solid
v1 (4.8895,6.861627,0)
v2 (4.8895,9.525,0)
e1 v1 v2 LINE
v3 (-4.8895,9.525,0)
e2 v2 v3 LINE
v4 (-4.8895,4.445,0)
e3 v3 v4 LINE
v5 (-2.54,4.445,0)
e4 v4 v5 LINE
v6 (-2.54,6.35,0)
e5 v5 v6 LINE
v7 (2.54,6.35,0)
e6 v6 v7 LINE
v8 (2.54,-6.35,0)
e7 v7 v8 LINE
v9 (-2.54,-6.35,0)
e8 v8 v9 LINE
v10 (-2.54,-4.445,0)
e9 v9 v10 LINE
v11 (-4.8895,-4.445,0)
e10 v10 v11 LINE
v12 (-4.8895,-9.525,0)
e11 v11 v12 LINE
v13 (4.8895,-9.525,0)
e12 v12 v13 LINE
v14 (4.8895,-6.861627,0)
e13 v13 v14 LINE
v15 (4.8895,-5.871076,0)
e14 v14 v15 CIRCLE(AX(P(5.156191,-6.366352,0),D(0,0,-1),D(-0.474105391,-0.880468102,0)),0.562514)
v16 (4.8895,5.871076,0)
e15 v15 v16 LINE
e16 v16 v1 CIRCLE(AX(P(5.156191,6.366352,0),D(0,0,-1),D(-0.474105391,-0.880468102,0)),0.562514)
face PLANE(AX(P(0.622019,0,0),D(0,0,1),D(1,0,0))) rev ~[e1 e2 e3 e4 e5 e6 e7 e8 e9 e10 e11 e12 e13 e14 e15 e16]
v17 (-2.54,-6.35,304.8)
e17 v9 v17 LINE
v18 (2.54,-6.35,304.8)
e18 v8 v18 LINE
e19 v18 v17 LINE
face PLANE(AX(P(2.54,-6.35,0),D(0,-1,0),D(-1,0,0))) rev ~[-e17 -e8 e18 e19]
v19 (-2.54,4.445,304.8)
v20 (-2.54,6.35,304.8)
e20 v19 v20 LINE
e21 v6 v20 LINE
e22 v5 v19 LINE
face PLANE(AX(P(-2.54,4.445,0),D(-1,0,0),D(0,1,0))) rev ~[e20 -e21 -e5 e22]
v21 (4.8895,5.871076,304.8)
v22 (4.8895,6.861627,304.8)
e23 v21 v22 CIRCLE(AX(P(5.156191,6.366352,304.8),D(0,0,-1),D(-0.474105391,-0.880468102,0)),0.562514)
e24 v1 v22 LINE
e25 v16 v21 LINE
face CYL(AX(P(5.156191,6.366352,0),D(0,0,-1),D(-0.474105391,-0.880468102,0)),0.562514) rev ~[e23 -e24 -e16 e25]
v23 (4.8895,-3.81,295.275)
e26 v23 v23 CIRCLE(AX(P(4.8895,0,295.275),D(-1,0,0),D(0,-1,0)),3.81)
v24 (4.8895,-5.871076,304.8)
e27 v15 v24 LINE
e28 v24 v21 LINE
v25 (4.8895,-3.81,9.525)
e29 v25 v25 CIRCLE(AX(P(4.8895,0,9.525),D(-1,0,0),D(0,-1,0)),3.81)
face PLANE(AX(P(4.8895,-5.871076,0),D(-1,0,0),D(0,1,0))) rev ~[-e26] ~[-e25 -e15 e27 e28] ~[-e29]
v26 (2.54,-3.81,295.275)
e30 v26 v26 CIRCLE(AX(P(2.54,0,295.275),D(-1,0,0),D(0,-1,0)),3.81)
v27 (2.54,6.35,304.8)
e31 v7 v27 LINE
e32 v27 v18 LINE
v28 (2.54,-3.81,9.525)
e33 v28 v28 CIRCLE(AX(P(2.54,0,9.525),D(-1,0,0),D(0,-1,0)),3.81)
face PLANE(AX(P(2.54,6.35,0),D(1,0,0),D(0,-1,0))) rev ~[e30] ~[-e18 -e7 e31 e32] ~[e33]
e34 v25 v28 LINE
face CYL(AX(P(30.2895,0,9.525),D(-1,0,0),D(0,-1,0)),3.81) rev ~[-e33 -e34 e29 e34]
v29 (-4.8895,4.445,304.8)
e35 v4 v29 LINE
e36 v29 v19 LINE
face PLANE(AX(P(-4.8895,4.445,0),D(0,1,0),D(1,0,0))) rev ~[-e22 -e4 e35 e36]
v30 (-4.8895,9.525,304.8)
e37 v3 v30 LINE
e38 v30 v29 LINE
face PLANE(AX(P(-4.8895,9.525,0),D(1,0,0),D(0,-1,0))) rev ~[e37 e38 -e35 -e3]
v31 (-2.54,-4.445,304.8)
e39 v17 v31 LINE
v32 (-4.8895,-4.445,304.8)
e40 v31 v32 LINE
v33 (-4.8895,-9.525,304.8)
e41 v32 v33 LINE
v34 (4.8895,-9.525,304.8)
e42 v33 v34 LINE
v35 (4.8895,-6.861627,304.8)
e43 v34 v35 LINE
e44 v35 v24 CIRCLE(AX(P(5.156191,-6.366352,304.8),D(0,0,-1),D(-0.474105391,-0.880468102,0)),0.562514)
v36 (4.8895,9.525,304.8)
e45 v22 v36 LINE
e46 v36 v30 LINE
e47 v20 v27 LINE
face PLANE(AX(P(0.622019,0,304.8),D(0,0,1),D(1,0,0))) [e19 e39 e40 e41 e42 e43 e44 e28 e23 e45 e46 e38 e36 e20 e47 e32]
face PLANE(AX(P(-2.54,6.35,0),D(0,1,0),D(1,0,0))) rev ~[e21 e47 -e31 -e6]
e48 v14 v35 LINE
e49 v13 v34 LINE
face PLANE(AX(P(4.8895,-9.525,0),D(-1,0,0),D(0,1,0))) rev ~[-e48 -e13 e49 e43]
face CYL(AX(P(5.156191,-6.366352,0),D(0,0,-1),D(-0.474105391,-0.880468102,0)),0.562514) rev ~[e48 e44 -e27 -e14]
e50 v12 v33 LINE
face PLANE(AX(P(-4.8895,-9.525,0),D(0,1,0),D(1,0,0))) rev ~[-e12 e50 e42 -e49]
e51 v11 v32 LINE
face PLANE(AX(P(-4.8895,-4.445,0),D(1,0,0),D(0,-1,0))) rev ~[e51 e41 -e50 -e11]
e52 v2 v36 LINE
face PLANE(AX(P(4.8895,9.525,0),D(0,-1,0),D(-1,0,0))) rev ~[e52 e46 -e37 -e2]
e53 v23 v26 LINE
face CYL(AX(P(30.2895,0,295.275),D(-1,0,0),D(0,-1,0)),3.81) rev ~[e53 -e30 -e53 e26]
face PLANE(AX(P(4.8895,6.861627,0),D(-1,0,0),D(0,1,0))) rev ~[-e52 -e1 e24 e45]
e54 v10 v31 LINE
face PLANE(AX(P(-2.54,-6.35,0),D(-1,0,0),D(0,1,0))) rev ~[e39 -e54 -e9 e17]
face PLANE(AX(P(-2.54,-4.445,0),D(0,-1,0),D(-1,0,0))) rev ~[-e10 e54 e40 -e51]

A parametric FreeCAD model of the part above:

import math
import FreeCAD as App
import Part
import Sketcher
from FreeCAD import Vector
Q = App.Units.Quantity

doc = App.newDocument("Part")
params = doc.addObject("Spreadsheet::Sheet", "Params")
for row, (alias, value) in enumerate([
    ("sketch1_width", "0.2 in"),
    ("sketch1_height", "0.5 in"),
    ("sketch1_width2", "0.385 in"),
    ("sketch1_height2", "0.075 in"),
    ("pad1_length", "12 in"),
    ("sketch2_diameter", "0.3 in"),
    ("hole_diameter", "0.3 in"),
    ("hole_depth", "1 in"),
], start=1):
    params.set(f"A{row}", alias)
    params.set(f"B{row}", "=" + value)
    params.setAlias(f"B{row}", alias)

body = doc.addObject("PartDesign::Body", "Body")

# Sketch on XY plane
sketch1 = body.newObject("Sketcher::SketchObject", "Sketch")
sketch1.AttachmentSupport = (doc.getObject("XY_Plane"), [""])
sketch1.MapMode = "FlatFace"
sketch1.addGeometry(Part.LineSegment(Vector(-4.9, -9.5, 0), Vector(4.9, -9.5, 0)), False)
sketch1.addGeometry(Part.LineSegment(Vector(4.9, -9.5, 0), Vector(4.9, -6.9, 0)), False)
sketch1.addGeometry(Part.ArcOfCircle(Part.Circle(Vector(5.2, -6.4, 0), Vector(0, 0, 1), 0.6), math.radians(118), math.radians(242)), False)
sketch1.addGeometry(Part.LineSegment(Vector(4.9, -5.9, 0), Vector(4.9, 5.9, 0)), False)
sketch1.addGeometry(Part.ArcOfCircle(Part.Circle(Vector(5.2, 6.4, 0), Vector(0, 0, 1), 0.6), math.radians(118), math.radians(242)), False)
sketch1.addGeometry(Part.LineSegment(Vector(4.9, 6.9, 0), Vector(4.9, 9.5, 0)), False)
sketch1.addGeometry(Part.LineSegment(Vector(4.9, 9.5, 0), Vector(-4.9, 9.5, 0)), False)
sketch1.addGeometry(Part.LineSegment(Vector(-4.9, 9.5, 0), Vector(-4.9, 4.4, 0)), False)
sketch1.addGeometry(Part.LineSegment(Vector(-4.9, 4.4, 0), Vector(-2.5, 4.4, 0)), False)
sketch1.addGeometry(Part.LineSegment(Vector(-2.5, 4.4, 0), Vector(-2.5, 6.3, 0)), False)
sketch1.addGeometry(Part.LineSegment(Vector(-2.5, 6.3, 0), Vector(2.5, 6.3, 0)), False)
sketch1.addGeometry(Part.LineSegment(Vector(2.5, 6.3, 0), Vector(2.5, -6.3, 0)), False)
sketch1.addGeometry(Part.LineSegment(Vector(2.5, -6.3, 0), Vector(-2.5, -6.3, 0)), False)
sketch1.addGeometry(Part.LineSegment(Vector(-2.5, -6.3, 0), Vector(-2.5, -4.4, 0)), False)
sketch1.addGeometry(Part.LineSegment(Vector(-2.5, -4.4, 0), Vector(-4.9, -4.4, 0)), False)
sketch1.addGeometry(Part.LineSegment(Vector(-4.9, -4.4, 0), Vector(-4.9, -9.5, 0)), False)
sketch1.addConstraint(Sketcher.Constraint("Coincident", 0, 2, 1, 1))
sketch1.addConstraint(Sketcher.Constraint("Coincident", 1, 2, 2, 2))
sketch1.addConstraint(Sketcher.Constraint("Coincident", 2, 1, 3, 1))
sketch1.addConstraint(Sketcher.Constraint("Coincident", 3, 2, 4, 2))
sketch1.addConstraint(Sketcher.Constraint("Coincident", 4, 1, 5, 1))
sketch1.addConstraint(Sketcher.Constraint("Coincident", 5, 2, 6, 1))
sketch1.addConstraint(Sketcher.Constraint("Coincident", 6, 2, 7, 1))
sketch1.addConstraint(Sketcher.Constraint("Coincident", 7, 2, 8, 1))
sketch1.addConstraint(Sketcher.Constraint("Coincident", 8, 2, 9, 1))
sketch1.addConstraint(Sketcher.Constraint("Coincident", 9, 2, 10, 1))
sketch1.addConstraint(Sketcher.Constraint("Coincident", 10, 2, 11, 1))
sketch1.addConstraint(Sketcher.Constraint("Coincident", 11, 2, 12, 1))
sketch1.addConstraint(Sketcher.Constraint("Coincident", 12, 2, 13, 1))
sketch1.addConstraint(Sketcher.Constraint("Coincident", 13, 2, 14, 1))
sketch1.addConstraint(Sketcher.Constraint("Coincident", 14, 2, 15, 1))
sketch1.addConstraint(Sketcher.Constraint("Coincident", 15, 2, 0, 1))
sketch1.addConstraint(Sketcher.Constraint("Horizontal", 0))
sketch1.addConstraint(Sketcher.Constraint("Vertical", 1))
sketch1.addConstraint(Sketcher.Constraint("Vertical", 3))
sketch1.addConstraint(Sketcher.Constraint("Vertical", 5))
sketch1.addConstraint(Sketcher.Constraint("Horizontal", 6))
sketch1.addConstraint(Sketcher.Constraint("Vertical", 7))
sketch1.addConstraint(Sketcher.Constraint("Horizontal", 8))
sketch1.addConstraint(Sketcher.Constraint("Vertical", 9))
sketch1.addConstraint(Sketcher.Constraint("Horizontal", 10))
sketch1.addConstraint(Sketcher.Constraint("Vertical", 11))
sketch1.addConstraint(Sketcher.Constraint("Horizontal", 12))
sketch1.addConstraint(Sketcher.Constraint("Vertical", 13))
sketch1.addConstraint(Sketcher.Constraint("Horizontal", 14))
sketch1.addConstraint(Sketcher.Constraint("Vertical", 15))
sketch1.addConstraint(Sketcher.Constraint("Equal", 2, 4))
sketch1.addConstraint(Sketcher.Constraint("Symmetric", 0, 2, 6, 2, -1, 1))
sketch1.addConstraint(Sketcher.Constraint("Symmetric", 9, 2, 11, 2, -1, 1))
sketch1.addConstraint(Sketcher.Constraint("Symmetric", 2, 3, 4, 3, -1))
sketch1.addConstraint(Sketcher.Constraint("Symmetric", 8, 2, 13, 2, -1))
sketch1.addConstraint(Sketcher.Constraint("Vertical", 1, 2, 2, 1))
sketch1.addConstraint(Sketcher.Constraint("Vertical", 3, 2, 4, 1))
sketch1.addConstraint(Sketcher.Constraint("Vertical", 7, 2, 14, 2))
sketch1.addConstraint(Sketcher.Constraint("Equal", 12, 7))
sketch1.addConstraint(Sketcher.Constraint("DistanceX", 10, 1, 10, 2, Q("0.2 in")))
sketch1.addConstraint(Sketcher.Constraint("DistanceY", 11, 2, 11, 1, Q("0.5 in")))
sketch1.addConstraint(Sketcher.Constraint("DistanceX", 0, 1, 0, 2, Q("0.385 in")))
sketch1.addConstraint(Sketcher.Constraint("DistanceY", 9, 1, 9, 2, Q("0.075 in")))
sketch1.addConstraint(Sketcher.Constraint("Radius", 2, Q("0.562514 mm")))
sketch1.addConstraint(Sketcher.Constraint("DistanceY", 1, 1, 1, 2, Q("2.663373 mm")))
sketch1.addConstraint(Sketcher.Constraint("DistanceY", 3, 1, 3, 2, Q("11.742152 mm")))
sketch1.setExpression("Constraints[39]", "Params.sketch1_width")
sketch1.setExpression("Constraints[40]", "Params.sketch1_height")
sketch1.setExpression("Constraints[41]", "Params.sketch1_width2")
sketch1.setExpression("Constraints[42]", "Params.sketch1_height2")
pad1 = body.newObject("PartDesign::Pad", "Pad")
pad1.Profile = sketch1
pad1.setExpression("Length", "Params.pad1_length")

# Sketch on YZ plane
sketch2 = body.newObject("Sketcher::SketchObject", "Sketch001")
sketch2.AttachmentSupport = (doc.getObject("YZ_Plane"), [""])
sketch2.MapMode = "FlatFace"
sketch2.AttachmentOffset = App.Placement(Vector(0, 0, 0.1925 * 25.4), App.Rotation())
sketch2.addGeometry(Part.Circle(Vector(0, 295.3, 0), Vector(0, 0, 1), 3.8), False)
sketch2.addGeometry(Part.Circle(Vector(0, 9.5, 0), Vector(0, 0, 1), 3.8), False)
sketch2.addConstraint(Sketcher.Constraint("Equal", 0, 1))
sketch2.addConstraint(Sketcher.Constraint("PointOnObject", 0, 3, -2))
sketch2.addConstraint(Sketcher.Constraint("PointOnObject", 1, 3, -2))
sketch2.addConstraint(Sketcher.Constraint("Diameter", 0, Q("0.3 in")))
sketch2.addConstraint(Sketcher.Constraint("DistanceY", 1, 3, 0, 3, Q("11.25 in")))
sketch2.addConstraint(Sketcher.Constraint("DistanceY", -1, 1, 0, 3, Q("11.625 in")))
sketch2.setExpression("Constraints[3]", "Params.sketch2_diameter")
doc.recompute()
hole = body.newObject("PartDesign::Hole", "Hole")
hole.Profile = sketch2
hole.ThreadType = "None"
hole.setExpression("Diameter", "Params.hole_diameter")
hole.DepthType = "Dimension"
hole.setExpression("Depth", "Params.hole_depth")
hole.DrillPoint = "Flat"

doc.recompute()
